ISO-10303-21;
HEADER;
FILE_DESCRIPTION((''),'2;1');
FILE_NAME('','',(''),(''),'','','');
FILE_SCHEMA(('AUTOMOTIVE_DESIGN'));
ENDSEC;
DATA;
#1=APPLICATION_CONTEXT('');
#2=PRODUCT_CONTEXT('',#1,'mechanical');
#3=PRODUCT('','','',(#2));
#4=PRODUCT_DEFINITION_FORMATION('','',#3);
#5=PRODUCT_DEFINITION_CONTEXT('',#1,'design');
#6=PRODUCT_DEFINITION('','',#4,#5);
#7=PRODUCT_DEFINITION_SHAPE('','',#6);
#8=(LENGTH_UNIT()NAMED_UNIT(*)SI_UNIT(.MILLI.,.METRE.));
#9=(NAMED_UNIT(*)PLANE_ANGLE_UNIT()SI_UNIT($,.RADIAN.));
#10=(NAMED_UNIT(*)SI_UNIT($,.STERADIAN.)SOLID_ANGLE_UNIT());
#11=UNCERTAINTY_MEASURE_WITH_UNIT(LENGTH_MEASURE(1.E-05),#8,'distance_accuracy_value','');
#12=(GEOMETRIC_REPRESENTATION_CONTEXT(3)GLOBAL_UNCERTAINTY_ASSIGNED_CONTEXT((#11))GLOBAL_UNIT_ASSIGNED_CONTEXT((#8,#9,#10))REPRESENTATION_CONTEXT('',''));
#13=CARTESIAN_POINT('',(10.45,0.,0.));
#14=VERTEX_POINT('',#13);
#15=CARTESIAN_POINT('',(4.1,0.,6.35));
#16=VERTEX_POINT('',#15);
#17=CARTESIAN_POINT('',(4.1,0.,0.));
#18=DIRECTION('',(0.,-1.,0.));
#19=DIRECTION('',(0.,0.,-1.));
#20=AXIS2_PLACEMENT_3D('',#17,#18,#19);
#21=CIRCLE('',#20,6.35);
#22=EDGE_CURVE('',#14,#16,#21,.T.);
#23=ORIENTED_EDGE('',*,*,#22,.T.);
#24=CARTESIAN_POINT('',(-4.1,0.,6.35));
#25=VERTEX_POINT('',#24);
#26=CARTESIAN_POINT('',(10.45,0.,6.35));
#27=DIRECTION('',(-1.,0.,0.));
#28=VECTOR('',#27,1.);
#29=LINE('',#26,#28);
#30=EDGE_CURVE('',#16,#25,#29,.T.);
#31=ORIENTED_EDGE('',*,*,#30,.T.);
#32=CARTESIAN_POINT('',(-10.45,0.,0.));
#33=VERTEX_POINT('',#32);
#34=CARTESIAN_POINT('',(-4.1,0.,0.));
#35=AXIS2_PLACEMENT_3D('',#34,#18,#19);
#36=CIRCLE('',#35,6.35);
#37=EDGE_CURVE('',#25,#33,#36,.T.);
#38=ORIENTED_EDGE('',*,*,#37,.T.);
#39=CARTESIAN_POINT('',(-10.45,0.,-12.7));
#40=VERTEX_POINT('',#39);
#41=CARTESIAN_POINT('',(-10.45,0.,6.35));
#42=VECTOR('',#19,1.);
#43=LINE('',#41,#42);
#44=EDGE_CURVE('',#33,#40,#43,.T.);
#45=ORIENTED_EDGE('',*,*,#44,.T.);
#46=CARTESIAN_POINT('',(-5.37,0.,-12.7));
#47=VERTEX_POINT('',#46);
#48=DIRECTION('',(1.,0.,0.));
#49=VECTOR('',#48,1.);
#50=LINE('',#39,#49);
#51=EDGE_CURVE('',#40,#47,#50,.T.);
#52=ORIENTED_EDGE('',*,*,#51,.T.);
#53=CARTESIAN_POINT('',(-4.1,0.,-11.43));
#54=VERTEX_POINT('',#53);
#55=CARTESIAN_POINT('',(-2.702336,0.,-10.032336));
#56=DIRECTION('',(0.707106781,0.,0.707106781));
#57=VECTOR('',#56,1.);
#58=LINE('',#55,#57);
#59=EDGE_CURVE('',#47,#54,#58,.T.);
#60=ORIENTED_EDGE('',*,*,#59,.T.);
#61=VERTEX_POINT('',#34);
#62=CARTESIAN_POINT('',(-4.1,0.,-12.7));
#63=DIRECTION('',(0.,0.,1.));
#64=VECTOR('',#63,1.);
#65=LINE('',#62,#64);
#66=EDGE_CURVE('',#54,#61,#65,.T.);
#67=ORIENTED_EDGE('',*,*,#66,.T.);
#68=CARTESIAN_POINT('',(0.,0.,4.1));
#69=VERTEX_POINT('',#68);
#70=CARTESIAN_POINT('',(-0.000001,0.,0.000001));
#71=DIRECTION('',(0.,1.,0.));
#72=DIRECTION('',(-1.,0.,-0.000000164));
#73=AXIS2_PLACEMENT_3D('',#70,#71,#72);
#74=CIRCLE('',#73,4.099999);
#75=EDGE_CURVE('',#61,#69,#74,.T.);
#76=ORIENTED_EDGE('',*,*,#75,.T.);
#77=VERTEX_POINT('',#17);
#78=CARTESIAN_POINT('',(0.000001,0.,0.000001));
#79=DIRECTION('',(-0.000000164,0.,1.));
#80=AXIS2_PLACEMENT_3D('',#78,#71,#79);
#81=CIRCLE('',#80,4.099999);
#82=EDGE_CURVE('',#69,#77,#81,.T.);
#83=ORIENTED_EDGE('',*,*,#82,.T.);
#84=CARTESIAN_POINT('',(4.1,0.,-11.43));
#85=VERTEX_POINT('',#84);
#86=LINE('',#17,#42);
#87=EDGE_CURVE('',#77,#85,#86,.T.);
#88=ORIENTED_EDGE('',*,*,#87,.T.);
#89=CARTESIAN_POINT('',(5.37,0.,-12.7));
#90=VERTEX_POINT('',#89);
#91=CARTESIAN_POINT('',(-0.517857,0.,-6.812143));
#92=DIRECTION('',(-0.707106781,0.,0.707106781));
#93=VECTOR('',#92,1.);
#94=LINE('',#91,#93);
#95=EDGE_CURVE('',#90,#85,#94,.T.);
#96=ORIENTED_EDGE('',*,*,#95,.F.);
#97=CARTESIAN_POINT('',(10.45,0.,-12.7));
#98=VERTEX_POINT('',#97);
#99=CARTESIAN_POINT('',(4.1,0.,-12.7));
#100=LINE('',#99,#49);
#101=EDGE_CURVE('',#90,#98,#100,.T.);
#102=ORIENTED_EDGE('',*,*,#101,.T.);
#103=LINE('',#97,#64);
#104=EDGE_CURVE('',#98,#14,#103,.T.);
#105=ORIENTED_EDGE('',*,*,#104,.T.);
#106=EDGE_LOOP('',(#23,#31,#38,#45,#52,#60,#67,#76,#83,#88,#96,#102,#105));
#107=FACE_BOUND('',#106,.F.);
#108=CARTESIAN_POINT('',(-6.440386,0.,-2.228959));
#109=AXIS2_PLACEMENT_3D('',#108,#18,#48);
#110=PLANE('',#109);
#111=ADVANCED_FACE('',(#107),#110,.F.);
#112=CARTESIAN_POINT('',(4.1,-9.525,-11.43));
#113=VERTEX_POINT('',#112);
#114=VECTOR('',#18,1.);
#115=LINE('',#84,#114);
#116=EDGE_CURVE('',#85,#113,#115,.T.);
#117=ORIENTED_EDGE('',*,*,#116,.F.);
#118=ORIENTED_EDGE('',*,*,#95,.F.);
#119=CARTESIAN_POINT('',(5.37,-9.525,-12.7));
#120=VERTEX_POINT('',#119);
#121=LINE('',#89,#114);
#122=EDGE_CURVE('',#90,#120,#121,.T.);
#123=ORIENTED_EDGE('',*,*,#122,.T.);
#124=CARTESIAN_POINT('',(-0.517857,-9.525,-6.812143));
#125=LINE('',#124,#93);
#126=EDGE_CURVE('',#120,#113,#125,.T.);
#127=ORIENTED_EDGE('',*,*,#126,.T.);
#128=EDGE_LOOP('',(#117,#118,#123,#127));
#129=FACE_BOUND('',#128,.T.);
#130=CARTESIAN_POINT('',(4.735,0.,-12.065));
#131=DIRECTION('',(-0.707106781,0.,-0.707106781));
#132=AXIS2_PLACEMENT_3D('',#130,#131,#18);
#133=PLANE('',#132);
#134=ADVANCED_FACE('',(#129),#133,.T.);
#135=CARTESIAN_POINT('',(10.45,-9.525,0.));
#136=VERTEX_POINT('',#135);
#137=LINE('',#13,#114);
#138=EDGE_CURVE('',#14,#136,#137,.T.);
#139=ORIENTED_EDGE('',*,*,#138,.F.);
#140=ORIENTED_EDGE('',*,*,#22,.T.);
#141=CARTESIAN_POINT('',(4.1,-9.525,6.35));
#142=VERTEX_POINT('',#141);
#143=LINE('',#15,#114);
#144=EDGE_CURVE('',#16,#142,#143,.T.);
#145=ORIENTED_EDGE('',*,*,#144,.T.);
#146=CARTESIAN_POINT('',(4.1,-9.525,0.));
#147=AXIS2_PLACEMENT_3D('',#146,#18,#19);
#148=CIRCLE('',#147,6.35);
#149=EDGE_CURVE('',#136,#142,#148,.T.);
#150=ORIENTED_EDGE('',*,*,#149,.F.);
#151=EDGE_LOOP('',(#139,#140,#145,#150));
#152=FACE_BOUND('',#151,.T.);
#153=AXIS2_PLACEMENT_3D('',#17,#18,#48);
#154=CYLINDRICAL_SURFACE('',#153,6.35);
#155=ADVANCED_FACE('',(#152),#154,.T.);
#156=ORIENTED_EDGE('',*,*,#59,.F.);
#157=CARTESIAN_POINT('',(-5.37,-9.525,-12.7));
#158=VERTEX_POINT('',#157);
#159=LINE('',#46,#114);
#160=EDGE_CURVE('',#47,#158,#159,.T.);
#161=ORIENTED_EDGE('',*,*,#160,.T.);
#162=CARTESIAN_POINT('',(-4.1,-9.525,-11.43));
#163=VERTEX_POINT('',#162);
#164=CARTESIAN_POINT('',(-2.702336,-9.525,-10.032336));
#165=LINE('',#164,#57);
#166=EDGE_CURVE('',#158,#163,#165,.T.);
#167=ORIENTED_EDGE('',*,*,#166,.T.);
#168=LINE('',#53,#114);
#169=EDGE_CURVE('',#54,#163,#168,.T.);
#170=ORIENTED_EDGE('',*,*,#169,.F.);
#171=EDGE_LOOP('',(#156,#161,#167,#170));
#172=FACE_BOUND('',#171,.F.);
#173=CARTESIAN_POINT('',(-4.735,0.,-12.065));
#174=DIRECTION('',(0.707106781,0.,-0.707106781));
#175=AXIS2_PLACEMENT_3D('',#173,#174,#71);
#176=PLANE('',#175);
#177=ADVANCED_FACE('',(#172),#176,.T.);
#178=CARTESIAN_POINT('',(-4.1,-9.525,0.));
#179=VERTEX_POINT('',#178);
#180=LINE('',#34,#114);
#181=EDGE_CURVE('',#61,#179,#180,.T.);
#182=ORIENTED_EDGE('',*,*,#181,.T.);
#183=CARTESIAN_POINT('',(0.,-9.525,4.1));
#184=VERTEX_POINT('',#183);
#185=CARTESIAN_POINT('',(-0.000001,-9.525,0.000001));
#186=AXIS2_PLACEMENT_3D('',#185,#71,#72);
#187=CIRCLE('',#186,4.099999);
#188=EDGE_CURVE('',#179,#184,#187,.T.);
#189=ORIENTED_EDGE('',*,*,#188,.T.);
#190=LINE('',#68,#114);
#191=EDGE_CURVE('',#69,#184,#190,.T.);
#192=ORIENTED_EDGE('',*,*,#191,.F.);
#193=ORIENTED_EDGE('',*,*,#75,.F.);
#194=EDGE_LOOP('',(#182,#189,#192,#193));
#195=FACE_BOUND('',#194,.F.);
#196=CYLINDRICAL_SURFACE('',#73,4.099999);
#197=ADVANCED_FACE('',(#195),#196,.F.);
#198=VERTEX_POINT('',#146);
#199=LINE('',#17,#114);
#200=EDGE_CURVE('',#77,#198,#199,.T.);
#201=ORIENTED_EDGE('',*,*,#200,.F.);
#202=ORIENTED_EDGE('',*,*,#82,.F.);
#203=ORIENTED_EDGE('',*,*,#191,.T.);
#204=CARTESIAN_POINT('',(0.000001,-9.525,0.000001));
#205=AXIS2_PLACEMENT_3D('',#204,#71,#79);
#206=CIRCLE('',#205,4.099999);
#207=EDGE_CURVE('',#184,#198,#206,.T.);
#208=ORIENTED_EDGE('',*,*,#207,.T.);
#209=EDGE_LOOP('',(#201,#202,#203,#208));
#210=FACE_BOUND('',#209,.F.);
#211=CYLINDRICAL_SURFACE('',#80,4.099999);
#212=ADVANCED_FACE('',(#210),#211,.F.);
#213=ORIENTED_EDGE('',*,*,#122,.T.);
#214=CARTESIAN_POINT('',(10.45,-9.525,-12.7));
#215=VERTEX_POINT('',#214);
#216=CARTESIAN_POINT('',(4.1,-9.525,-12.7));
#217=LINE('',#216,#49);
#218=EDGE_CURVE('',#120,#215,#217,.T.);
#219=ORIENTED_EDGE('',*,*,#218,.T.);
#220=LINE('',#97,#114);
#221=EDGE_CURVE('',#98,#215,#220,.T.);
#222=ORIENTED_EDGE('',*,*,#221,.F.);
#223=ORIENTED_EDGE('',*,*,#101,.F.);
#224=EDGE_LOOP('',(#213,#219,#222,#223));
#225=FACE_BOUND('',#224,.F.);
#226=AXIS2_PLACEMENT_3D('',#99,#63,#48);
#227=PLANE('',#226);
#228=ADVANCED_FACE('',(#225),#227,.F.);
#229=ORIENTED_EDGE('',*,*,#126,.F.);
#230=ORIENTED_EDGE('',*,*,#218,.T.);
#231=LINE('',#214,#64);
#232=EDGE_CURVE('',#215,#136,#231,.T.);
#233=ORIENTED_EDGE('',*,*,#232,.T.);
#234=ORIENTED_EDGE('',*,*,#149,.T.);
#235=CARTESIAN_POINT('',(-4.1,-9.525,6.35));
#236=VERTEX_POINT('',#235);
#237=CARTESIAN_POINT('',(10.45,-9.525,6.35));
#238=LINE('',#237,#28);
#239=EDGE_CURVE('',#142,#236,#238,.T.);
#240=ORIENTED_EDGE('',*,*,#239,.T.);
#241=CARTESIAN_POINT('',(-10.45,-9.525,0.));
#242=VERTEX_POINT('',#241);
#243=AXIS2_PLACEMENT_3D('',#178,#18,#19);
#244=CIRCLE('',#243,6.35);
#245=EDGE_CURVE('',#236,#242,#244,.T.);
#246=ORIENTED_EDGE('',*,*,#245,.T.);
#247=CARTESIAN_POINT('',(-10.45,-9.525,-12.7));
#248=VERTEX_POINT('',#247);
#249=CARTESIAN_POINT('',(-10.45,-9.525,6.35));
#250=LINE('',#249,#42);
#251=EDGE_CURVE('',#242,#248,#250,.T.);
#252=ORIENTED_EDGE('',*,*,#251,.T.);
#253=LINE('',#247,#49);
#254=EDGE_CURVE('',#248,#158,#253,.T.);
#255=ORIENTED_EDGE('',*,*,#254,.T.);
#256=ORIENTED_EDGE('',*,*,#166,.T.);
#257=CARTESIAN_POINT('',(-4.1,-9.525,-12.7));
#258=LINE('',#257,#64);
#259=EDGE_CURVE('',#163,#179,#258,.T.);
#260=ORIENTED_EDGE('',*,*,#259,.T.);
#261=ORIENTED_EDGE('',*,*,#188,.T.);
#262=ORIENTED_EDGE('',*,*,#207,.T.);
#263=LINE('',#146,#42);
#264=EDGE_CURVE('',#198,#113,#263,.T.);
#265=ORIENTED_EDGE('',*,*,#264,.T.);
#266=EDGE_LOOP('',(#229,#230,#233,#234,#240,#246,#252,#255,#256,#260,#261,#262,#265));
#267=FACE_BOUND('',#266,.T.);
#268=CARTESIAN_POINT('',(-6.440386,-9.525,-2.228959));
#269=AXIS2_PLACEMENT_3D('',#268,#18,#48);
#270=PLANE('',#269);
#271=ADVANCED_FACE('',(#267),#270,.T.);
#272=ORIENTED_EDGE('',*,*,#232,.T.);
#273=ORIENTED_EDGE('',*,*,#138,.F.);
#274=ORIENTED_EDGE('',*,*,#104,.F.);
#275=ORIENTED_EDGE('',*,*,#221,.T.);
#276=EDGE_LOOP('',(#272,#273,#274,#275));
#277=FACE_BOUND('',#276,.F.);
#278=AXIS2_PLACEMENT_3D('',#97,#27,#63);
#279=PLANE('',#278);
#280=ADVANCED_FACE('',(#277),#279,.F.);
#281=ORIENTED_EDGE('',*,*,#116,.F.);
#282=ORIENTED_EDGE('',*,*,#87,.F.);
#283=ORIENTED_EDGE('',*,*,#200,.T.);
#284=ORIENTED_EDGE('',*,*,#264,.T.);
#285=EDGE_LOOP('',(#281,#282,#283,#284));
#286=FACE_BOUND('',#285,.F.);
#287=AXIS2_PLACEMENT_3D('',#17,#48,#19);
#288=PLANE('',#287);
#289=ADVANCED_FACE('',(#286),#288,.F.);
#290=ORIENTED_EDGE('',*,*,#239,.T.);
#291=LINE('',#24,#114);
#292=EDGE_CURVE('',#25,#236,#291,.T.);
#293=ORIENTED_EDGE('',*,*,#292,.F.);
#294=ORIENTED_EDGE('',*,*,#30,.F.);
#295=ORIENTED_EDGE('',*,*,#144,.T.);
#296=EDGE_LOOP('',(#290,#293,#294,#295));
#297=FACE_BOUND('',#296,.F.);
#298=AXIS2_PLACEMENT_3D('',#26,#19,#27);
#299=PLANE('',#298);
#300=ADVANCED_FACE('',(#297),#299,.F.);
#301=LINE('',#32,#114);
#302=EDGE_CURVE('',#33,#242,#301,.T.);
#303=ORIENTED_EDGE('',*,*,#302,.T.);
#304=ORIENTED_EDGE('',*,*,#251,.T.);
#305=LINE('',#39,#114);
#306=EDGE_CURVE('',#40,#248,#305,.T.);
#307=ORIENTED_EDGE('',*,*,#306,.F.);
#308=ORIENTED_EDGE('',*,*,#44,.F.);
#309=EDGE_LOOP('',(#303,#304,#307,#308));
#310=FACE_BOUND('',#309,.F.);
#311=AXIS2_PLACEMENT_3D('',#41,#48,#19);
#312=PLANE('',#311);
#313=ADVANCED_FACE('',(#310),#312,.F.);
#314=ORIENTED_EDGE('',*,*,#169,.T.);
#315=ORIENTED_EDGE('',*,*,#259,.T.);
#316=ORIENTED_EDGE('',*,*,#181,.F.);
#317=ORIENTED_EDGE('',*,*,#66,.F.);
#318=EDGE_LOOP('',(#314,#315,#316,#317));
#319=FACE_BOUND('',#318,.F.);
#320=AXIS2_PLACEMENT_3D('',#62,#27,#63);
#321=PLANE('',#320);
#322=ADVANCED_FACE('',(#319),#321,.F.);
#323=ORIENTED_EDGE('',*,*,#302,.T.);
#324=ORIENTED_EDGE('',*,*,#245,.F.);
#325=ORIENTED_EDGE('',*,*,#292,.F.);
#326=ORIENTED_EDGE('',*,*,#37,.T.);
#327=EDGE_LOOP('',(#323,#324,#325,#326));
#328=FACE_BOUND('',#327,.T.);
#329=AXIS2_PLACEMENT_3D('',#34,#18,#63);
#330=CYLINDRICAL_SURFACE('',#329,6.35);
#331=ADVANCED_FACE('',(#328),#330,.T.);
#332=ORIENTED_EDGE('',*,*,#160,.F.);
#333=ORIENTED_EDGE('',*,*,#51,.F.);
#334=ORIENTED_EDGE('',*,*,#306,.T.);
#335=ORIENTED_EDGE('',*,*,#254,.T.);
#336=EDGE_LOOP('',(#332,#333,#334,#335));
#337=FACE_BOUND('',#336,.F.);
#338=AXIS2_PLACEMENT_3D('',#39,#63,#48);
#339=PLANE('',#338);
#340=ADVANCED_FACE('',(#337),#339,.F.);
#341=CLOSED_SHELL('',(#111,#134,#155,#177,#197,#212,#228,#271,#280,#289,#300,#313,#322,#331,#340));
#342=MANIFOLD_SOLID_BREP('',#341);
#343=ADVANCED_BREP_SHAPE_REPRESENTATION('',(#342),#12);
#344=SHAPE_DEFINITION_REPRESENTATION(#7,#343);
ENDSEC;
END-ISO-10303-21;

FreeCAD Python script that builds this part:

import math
import FreeCAD as App
import Part
import Sketcher
Q = App.Units.Quantity


def edges_at(feature, points):
    """Names of the edges that pass closest to the given points."""
    edges = feature.Shape.Edges
    near = lambda p: min(range(len(edges)), key=lambda i: edges[i].distToShape(Part.Vertex(*p))[0])
    return sorted({f"Edge{near(p) + 1}" for p in points})

doc = App.newDocument("Part")
body = doc.addObject("PartDesign::Body", "Body")

# Sketch on XZ plane
sketch1 = body.newObject("Sketcher::SketchObject", "Sketch")
sketch1.AttachmentSupport = (doc.getObject("XZ_Plane"), [""])
sketch1.MapMode = "FlatFace"
sketch1.addGeometry([
    Part.LineSegment(App.Vector(-4.1, -12.7, 0), App.Vector(-4.1, 0, 0)),  # 0
    Part.ArcOfCircle(Part.Circle(App.Vector(0, 0, 0), App.Vector(0, 0, 1), 4.1), math.radians(90), math.radians(180)),  # 1
    Part.ArcOfCircle(Part.Circle(App.Vector(0, 0, 0), App.Vector(0, 0, 1), 4.1), math.radians(0), math.radians(90)),  # 2
    Part.LineSegment(App.Vector(4.1, 0, 0), App.Vector(4.1, -12.7, 0)),  # 3
    Part.LineSegment(App.Vector(4.1, -12.7, 0), App.Vector(10.4, -12.7, 0)),  # 4
    Part.LineSegment(App.Vector(10.4, -12.7, 0), App.Vector(10.4, 6.3, 0)),  # 5
    Part.LineSegment(App.Vector(10.4, 6.3, 0), App.Vector(-10.4, 6.3, 0)),  # 6
    Part.LineSegment(App.Vector(-10.4, 6.3, 0), App.Vector(-10.4, -12.7, 0)),  # 7
    Part.LineSegment(App.Vector(-10.4, -12.7, 0), App.Vector(-4.1, -12.7, 0)),  # 8
], False)
sketch1.addConstraint([
    Sketcher.Constraint("Tangent", 0, 2, 1, 2),
    Sketcher.Constraint("Tangent", 1, 1, 2, 2),
    Sketcher.Constraint("Tangent", 2, 1, 3, 1),
    Sketcher.Constraint("Coincident", 3, 2, 4, 1),
    Sketcher.Constraint("Coincident", 4, 2, 5, 1),
    Sketcher.Constraint("Coincident", 5, 2, 6, 1),
    Sketcher.Constraint("Coincident", 6, 2, 7, 1),
    Sketcher.Constraint("Coincident", 7, 2, 8, 1),
    Sketcher.Constraint("Coincident", 8, 2, 0, 1),
    Sketcher.Constraint("Vertical", 0),
    Sketcher.Constraint("Vertical", 3),
    Sketcher.Constraint("Horizontal", 4),
    Sketcher.Constraint("Vertical", 5),
    Sketcher.Constraint("Horizontal", 6),
    Sketcher.Constraint("Vertical", 7),
    Sketcher.Constraint("Horizontal", 8),
    Sketcher.Constraint("Coincident", 1, 3, -1, 1),
    Sketcher.Constraint("Equal", 1, 2),
    Sketcher.Constraint("Symmetric", 4, 2, 7, 2, -2),
    Sketcher.Constraint("PointOnObject", 1, 1, -2),
    Sketcher.Constraint("DistanceY", 0, 1, 0, 2, Q("0.5 in")),
    Sketcher.Constraint("DistanceX", 4, 1, 4, 2, Q("0.25 in")),
    Sketcher.Constraint("DistanceY", 5, 1, 5, 2, Q("0.75 in")),
    Sketcher.Constraint("Radius", 1, 4.099999),
])
pad1 = body.newObject("PartDesign::Pad", "Pad")
pad1.Profile = sketch1
pad1.Length = Q("0.375 in")
doc.recompute()

fillet = body.newObject("PartDesign::Fillet", "Fillet")
fillet.Base = (pad1, edges_at(pad1, [(-10.45, -4.763, 6.35), (10.45, -4.763, 6.35)]))
fillet.Radius = Q("0.25 in")
doc.recompute()

chamfer = body.newObject("PartDesign::Chamfer", "Chamfer")
chamfer.Base = (fillet, edges_at(fillet, [(-4.1, -4.763, -12.7), (4.1, -4.763, -12.7)]))
chamfer.Size = Q("0.05 in")

doc.recompute()
